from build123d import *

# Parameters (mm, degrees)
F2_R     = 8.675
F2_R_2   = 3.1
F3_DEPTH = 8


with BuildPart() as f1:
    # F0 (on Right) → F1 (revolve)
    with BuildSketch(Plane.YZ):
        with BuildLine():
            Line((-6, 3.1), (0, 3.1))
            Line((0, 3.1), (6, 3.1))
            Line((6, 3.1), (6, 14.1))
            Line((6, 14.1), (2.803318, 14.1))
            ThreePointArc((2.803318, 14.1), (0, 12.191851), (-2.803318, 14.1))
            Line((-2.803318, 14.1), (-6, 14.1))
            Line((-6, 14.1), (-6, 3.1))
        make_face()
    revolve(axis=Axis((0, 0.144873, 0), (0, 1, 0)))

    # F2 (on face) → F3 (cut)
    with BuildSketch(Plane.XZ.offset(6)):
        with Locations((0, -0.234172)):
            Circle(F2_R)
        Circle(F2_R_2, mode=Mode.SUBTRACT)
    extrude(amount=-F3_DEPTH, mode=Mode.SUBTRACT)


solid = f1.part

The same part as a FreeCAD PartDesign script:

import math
import FreeCAD as App
import Part
import Sketcher
from FreeCAD import Vector
Q = App.Units.Quantity

doc = App.newDocument("Part")
body = doc.addObject("PartDesign::Body", "Body")

# Sketch on YZ plane
sketch1 = body.newObject("Sketcher::SketchObject", "Sketch")
sketch1.AttachmentSupport = (doc.getObject("YZ_Plane"), [""])
sketch1.MapMode = "FlatFace"
sketch1.addGeometry(Part.LineSegment(Vector(-6, 3.1, 0), Vector(6, 3.1, 0)), False)
sketch1.addGeometry(Part.LineSegment(Vector(6, 3.1, 0), Vector(6, 14.1, 0)), False)
sketch1.addGeometry(Part.LineSegment(Vector(6, 14.1, 0), Vector(2.8, 14.1, 0)), False)
sketch1.addGeometry(Part.ArcOfCircle(Part.Circle(Vector(0, 15.2, 0), Vector(0, 0, 1), 3), math.radians(-158), math.radians(-22)), False)
sketch1.addGeometry(Part.LineSegment(Vector(-2.8, 14.1, 0), Vector(-6, 14.1, 0)), False)
sketch1.addGeometry(Part.LineSegment(Vector(-6, 14.1, 0), Vector(-6, 3.1, 0)), False)
sketch1.addConstraint(Sketcher.Constraint("Coincident", 0, 2, 1, 1))
sketch1.addConstraint(Sketcher.Constraint("Coincident", 1, 2, 2, 1))
sketch1.addConstraint(Sketcher.Constraint("Coincident", 2, 2, 3, 2))
sketch1.addConstraint(Sketcher.Constraint("Coincident", 3, 1, 4, 1))
sketch1.addConstraint(Sketcher.Constraint("Coincident", 4, 2, 5, 1))
sketch1.addConstraint(Sketcher.Constraint("Coincident", 5, 2, 0, 1))
sketch1.addConstraint(Sketcher.Constraint("Horizontal", 0))
sketch1.addConstraint(Sketcher.Constraint("Vertical", 1))
sketch1.addConstraint(Sketcher.Constraint("Horizontal", 2))
sketch1.addConstraint(Sketcher.Constraint("Horizontal", 4))
sketch1.addConstraint(Sketcher.Constraint("Vertical", 5))
sketch1.addConstraint(Sketcher.Constraint("Symmetric", 2, 2, 3, 1, -2))
sketch1.addConstraint(Sketcher.Constraint("Equal", 2, 4))
sketch1.addConstraint(Sketcher.Constraint("DistanceX", 0, 1, 0, 2, Q("12 mm")))
sketch1.addConstraint(Sketcher.Constraint("DistanceY", 1, 1, 1, 2, Q("11 mm")))
sketch1.addConstraint(Sketcher.Constraint("DistanceY", -1, 1, 0, 2, Q("3.1 mm")))
sketch1.addConstraint(Sketcher.Constraint("Radius", 3, Q("3.013293 mm")))
sketch1.addConstraint(Sketcher.Constraint("DistanceX", 2, 2, 2, 1, Q("3.196682 mm")))
revolution = body.newObject("PartDesign::Revolution", "Revolution")
revolution.Profile = sketch1
revolution.ReferenceAxis = (sketch1, ["H_Axis"])
revolution.Angle = 360

# Sketch on XZ plane
sketch2 = body.newObject("Sketcher::SketchObject", "Sketch001")
sketch2.AttachmentSupport = (doc.getObject("XZ_Plane"), [""])
sketch2.MapMode = "FlatFace"
sketch2.AttachmentOffset = App.Placement(Vector(0, 0, 6), App.Rotation())
sketch2.addGeometry(Part.Circle(Vector(0, -0.2, 0), Vector(0, 0, 1), 8.7), False)
sketch2.addGeometry(Part.Circle(Vector(0, 0, 0), Vector(0, 0, 1), 3.1), False)
sketch2.addConstraint(Sketcher.Constraint("Coincident", 1, 3, -1, 1))
sketch2.addConstraint(Sketcher.Constraint("PointOnObject", 0, 3, -2))
sketch2.addConstraint(Sketcher.Constraint("Diameter", 1, Q("6.2 mm")))
sketch2.addConstraint(Sketcher.Constraint("Diameter", 0, Q("17.35 mm")))
sketch2.addConstraint(Sketcher.Constraint("DistanceY", 0, 3, -1, 1, Q("0.234172 mm")))
pocket1 = body.newObject("PartDesign::Pocket", "Pocket")
pocket1.Profile = sketch2
pocket1.Length = 8

doc.recompute()
